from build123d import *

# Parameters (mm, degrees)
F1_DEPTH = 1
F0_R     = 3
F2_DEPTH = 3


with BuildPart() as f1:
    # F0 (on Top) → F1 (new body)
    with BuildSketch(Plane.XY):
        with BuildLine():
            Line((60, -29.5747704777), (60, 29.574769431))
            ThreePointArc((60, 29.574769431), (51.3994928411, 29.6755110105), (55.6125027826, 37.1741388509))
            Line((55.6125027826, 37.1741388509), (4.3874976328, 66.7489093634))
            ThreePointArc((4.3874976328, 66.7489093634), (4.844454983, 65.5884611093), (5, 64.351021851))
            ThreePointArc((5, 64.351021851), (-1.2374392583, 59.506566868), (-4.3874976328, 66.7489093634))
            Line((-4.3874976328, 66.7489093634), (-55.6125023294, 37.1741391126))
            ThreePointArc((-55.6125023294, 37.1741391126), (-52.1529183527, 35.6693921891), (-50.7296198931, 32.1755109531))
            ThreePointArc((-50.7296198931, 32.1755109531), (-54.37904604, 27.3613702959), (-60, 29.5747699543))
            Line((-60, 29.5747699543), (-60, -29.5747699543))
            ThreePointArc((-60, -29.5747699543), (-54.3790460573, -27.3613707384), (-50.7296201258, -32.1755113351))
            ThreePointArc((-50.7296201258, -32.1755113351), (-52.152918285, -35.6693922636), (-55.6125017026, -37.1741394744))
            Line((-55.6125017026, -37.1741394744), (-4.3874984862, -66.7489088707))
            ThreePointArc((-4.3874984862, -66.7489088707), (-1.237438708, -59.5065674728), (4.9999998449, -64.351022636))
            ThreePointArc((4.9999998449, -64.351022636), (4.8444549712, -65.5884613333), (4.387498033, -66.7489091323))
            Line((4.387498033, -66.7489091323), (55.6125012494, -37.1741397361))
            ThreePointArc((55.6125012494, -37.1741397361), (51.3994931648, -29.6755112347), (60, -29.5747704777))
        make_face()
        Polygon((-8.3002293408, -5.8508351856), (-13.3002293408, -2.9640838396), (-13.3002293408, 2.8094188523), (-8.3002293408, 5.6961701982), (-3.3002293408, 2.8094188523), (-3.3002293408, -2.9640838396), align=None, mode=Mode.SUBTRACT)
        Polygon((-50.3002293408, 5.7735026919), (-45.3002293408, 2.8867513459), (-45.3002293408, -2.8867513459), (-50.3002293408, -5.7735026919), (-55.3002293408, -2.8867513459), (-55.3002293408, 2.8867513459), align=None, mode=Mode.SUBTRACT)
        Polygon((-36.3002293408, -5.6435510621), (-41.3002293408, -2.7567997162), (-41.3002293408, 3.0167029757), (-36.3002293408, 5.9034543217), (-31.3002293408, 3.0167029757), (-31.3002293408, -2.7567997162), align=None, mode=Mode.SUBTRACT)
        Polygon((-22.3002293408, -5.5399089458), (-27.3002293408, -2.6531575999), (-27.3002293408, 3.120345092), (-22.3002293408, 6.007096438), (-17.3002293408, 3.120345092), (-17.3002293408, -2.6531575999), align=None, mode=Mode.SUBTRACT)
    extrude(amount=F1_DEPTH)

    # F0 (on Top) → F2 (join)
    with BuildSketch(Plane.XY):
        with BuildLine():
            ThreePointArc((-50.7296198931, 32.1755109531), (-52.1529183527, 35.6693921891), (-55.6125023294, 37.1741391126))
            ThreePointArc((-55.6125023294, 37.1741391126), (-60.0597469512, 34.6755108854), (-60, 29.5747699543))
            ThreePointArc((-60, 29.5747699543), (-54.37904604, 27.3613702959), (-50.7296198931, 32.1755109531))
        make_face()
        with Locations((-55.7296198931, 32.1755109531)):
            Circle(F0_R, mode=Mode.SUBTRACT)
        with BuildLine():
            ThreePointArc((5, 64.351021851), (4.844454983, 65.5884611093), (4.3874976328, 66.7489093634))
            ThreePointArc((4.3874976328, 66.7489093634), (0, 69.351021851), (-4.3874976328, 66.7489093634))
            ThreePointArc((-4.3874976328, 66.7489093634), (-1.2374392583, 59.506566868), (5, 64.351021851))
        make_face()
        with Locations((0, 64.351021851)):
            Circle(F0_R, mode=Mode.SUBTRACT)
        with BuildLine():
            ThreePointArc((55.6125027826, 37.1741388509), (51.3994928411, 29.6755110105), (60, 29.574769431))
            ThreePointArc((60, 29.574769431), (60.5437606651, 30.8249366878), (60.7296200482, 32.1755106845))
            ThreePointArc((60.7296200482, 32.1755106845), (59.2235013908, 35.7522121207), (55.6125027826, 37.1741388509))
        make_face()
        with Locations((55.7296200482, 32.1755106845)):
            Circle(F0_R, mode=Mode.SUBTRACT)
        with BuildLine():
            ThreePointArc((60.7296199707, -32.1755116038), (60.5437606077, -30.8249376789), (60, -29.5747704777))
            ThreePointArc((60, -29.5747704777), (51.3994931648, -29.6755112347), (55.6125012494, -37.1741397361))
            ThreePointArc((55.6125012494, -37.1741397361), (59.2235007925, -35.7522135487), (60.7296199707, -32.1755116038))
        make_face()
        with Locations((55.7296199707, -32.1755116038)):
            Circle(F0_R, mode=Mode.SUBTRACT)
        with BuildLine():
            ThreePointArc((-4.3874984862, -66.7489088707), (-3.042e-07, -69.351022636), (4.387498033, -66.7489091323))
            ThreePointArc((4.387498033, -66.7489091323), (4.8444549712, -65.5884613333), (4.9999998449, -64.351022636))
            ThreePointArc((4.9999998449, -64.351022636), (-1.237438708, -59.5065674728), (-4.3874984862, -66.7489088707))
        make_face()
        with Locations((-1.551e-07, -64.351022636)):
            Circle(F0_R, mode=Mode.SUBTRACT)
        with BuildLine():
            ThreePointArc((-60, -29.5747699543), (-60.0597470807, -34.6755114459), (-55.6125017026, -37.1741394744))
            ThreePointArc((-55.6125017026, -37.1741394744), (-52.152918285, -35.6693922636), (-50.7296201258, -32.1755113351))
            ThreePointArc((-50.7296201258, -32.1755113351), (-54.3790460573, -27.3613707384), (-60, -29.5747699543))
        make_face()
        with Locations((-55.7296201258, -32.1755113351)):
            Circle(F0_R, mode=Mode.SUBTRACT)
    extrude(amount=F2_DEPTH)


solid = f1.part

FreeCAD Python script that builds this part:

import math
import FreeCAD as App
import Part
import Sketcher
Q = App.Units.Quantity


def add_polygon(sketch, points):
    """Adds a closed chain of lines whose ends are joined by coincident constraints."""
    first, n = sketch.GeometryCount, len(points)
    for a, b in zip(points, points[1:] + points[:1]):
        sketch.addGeometry(Part.LineSegment(App.Vector(*a, 0), App.Vector(*b, 0)), False)
    for i in range(n):
        sketch.addConstraint(Sketcher.Constraint("Coincident", first + i, 2, first + (i + 1) % n, 1))

doc = App.newDocument("Part")
body = doc.addObject("PartDesign::Body", "Body")

# Sketch on XY plane
sketch1 = body.newObject("Sketcher::SketchObject", "Sketch")
sketch1.AttachmentSupport = (doc.getObject("XY_Plane"), [""])
sketch1.MapMode = "FlatFace"
sketch1.addGeometry(Part.LineSegment(App.Vector(60, -29.57477, 0), App.Vector(60, 29.574769, 0)), False)  # 0
sketch1.addGeometry(Part.ArcOfCircle(Part.Circle(App.Vector(55.72962, 32.175511, 0), App.Vector(0, 0, 1), 5), math.radians(91.342188), math.radians(328.657804)), False)  # 1
sketch1.addGeometry(Part.LineSegment(App.Vector(55.612503, 37.174139, 0), App.Vector(4.387498, 66.748909, 0)), False)  # 2
sketch1.addGeometry(Part.ArcOfCircle(Part.Circle(App.Vector(0, 64.351022, 0), App.Vector(0, 0, 1), 5), math.radians(0), math.radians(28.657812)), False)  # 3
sketch1.addGeometry(Part.ArcOfCircle(Part.Circle(App.Vector(0, 64.351022, 0), App.Vector(0, 0, 1), 5), math.radians(151.342188), math.radians(360)), False)  # 4
sketch1.addGeometry(Part.LineSegment(App.Vector(-4.387498, 66.748909, 0), App.Vector(-55.612502, 37.174139, 0)), False)  # 5
sketch1.addGeometry(Part.ArcOfCircle(Part.Circle(App.Vector(-55.72962, 32.175511, 0), App.Vector(0, 0, 1), 5), math.radians(0), math.radians(88.657809)), False)  # 6
sketch1.addGeometry(Part.ArcOfCircle(Part.Circle(App.Vector(-55.72962, 32.175511, 0), App.Vector(0, 0, 1), 5), math.radians(-148.657807), math.radians(0)), False)  # 7
sketch1.addGeometry(Part.LineSegment(App.Vector(-60, 29.57477, 0), App.Vector(-60, -29.57477, 0)), False)  # 8
sketch1.addGeometry(Part.ArcOfCircle(Part.Circle(App.Vector(-55.72962, -32.175511, 0), App.Vector(0, 0, 1), 5), math.radians(0), math.radians(148.657802)), False)  # 9
sketch1.addGeometry(Part.ArcOfCircle(Part.Circle(App.Vector(-55.72962, -32.175511, 0), App.Vector(0, 0, 1), 5), math.radians(-88.657799), math.radians(0)), False)  # 10
sketch1.addGeometry(Part.LineSegment(App.Vector(-55.612502, -37.174139, 0), App.Vector(-4.387498, -66.748909, 0)), False)  # 11
sketch1.addGeometry(Part.ArcOfCircle(Part.Circle(App.Vector(0, -64.351023, 0), App.Vector(0, 0, 1), 5), math.radians(0), math.radians(208.657795)), False)  # 12
sketch1.addGeometry(Part.ArcOfCircle(Part.Circle(App.Vector(0, -64.351023, 0), App.Vector(0, 0, 1), 5), math.radians(-28.657798), math.radians(0)), False)  # 13
sketch1.addGeometry(Part.LineSegment(App.Vector(4.387498, -66.748909, 0), App.Vector(55.612501, -37.17414, 0)), False)  # 14
sketch1.addGeometry(Part.ArcOfCircle(Part.Circle(App.Vector(55.72962, -32.175512, 0), App.Vector(0, 0, 1), 5), math.radians(31.342195), math.radians(268.657796)), False)  # 15
add_polygon(sketch1, [(-55.300229, 2.886751), (-50.300229, 5.773503), (-45.300229, 2.886751), (-45.300229, -2.886751), (-50.300229, -5.773503), (-55.300229, -2.886751)])  # lines 16-21
add_polygon(sketch1, [(-3.300229, -2.964084), (-8.300229, -5.850835), (-13.300229, -2.964084), (-13.300229, 2.809419), (-8.300229, 5.69617), (-3.300229, 2.809419)])  # lines 22-27
add_polygon(sketch1, [(-31.300229, -2.7568), (-36.300229, -5.643551), (-41.300229, -2.7568), (-41.300229, 3.016703), (-36.300229, 5.903454), (-31.300229, 3.016703)])  # lines 28-33
add_polygon(sketch1, [(-17.300229, -2.653158), (-22.300229, -5.539909), (-27.300229, -2.653158), (-27.300229, 3.120345), (-22.300229, 6.007096), (-17.300229, 3.120345)])  # lines 34-39
sketch1.addConstraint([
    Sketcher.Constraint("Coincident", 0, 2, 1, 2),
    Sketcher.Constraint("Coincident", 1, 1, 2, 1),
    Sketcher.Constraint("Coincident", 2, 2, 3, 2),
    Sketcher.Constraint("Coincident", 3, 1, 4, 2),
    Sketcher.Constraint("Coincident", 4, 1, 5, 1),
    Sketcher.Constraint("Coincident", 5, 2, 6, 2),
    Sketcher.Constraint("Coincident", 6, 1, 7, 2),
    Sketcher.Constraint("Coincident", 7, 1, 8, 1),
    Sketcher.Constraint("Coincident", 8, 2, 9, 2),
    Sketcher.Constraint("Coincident", 9, 1, 10, 2),
    Sketcher.Constraint("Coincident", 10, 1, 11, 1),
    Sketcher.Constraint("Coincident", 11, 2, 12, 2),
    Sketcher.Constraint("Coincident", 12, 1, 13, 2),
    Sketcher.Constraint("Coincident", 13, 1, 14, 1),
    Sketcher.Constraint("Coincident", 14, 2, 15, 2),
    Sketcher.Constraint("Coincident", 15, 1, 0, 1),
    Sketcher.Constraint("Vertical", 0),
    Sketcher.Constraint("Vertical", 8),
    Sketcher.Constraint("Vertical", 18),
    Sketcher.Constraint("Vertical", 21),
    Sketcher.Constraint("Vertical", 24),
    Sketcher.Constraint("Vertical", 27),
    Sketcher.Constraint("Vertical", 30),
    Sketcher.Constraint("Vertical", 33),
    Sketcher.Constraint("Vertical", 36),
    Sketcher.Constraint("Vertical", 39),
    Sketcher.Constraint("Coincident", 4, 3, 3, 3),
    Sketcher.Constraint("Coincident", 7, 3, 6, 3),
    Sketcher.Constraint("Coincident", 10, 3, 9, 3),
    Sketcher.Constraint("Coincident", 13, 3, 12, 3),
    Sketcher.Constraint("PointOnObject", 3, 3, -2),
    Sketcher.Constraint("PointOnObject", 12, 3, -2),
    Sketcher.Constraint("Radius", 1, Q("5 mm")),
    Sketcher.Constraint("Radius", 3, Q("5 mm")),
    Sketcher.Constraint("Radius", 6, Q("5 mm")),
    Sketcher.Constraint("Radius", 9, Q("5 mm")),
    Sketcher.Constraint("Radius", 12, Q("5 mm")),
    Sketcher.Constraint("Radius", 15, Q("5 mm")),
    Sketcher.Constraint("DistanceX", -1, 1, 0, 2, Q("60 mm")),
    Sketcher.Constraint("DistanceX", 7, 1, -1, 1, Q("60 mm")),
    Sketcher.Constraint("DistanceX", 16, 2, 17, 2, Q("5 mm")),
    Sketcher.Constraint("DistanceX", 19, 2, 18, 2, Q("5 mm")),
    Sketcher.Constraint("DistanceX", 20, 2, 19, 2, Q("5 mm")),
    Sketcher.Constraint("DistanceX", 18, 2, 22, 2, Q("37 mm")),
    Sketcher.Constraint("DistanceX", 23, 2, 22, 2, Q("5 mm")),
    Sketcher.Constraint("DistanceX", 24, 2, 25, 2, Q("5 mm")),
    Sketcher.Constraint("DistanceX", 25, 2, 26, 2, Q("5 mm")),
    Sketcher.Constraint("DistanceX", 18, 2, 28, 2, Q("9 mm")),
    Sketcher.Constraint("DistanceX", 18, 2, 29, 2, Q("4 mm")),
    Sketcher.Constraint("DistanceX", 30, 2, 31, 2, Q("5 mm")),
    Sketcher.Constraint("DistanceX", 31, 2, 32, 2, Q("5 mm")),
    Sketcher.Constraint("DistanceX", 34, 2, 23, 2, Q("9 mm")),
    Sketcher.Constraint("DistanceX", 33, 2, 35, 2, Q("4 mm")),
    Sketcher.Constraint("DistanceX", 36, 2, 37, 2, Q("5 mm")),
    Sketcher.Constraint("DistanceX", 38, 2, 24, 2, Q("4 mm")),
    Sketcher.Constraint("DistanceY", 0, 1, 0, 2, Q("59.14954 mm")),
    Sketcher.Constraint("DistanceY", 8, 2, 8, 1, Q("59.14954 mm")),
    Sketcher.Constraint("DistanceX", 10, 1, -1, 1, Q("55.612502 mm")),
    Sketcher.Constraint("DistanceX", 11, 2, -1, 1, Q("4.387498 mm")),
    Sketcher.Constraint("DistanceX", -1, 1, 13, 1, Q("4.387498 mm")),
    Sketcher.Constraint("DistanceX", -1, 1, 14, 2, Q("55.612501 mm")),
    Sketcher.Constraint("DistanceY", 29, 2, -1, 1, Q("2.7568 mm")),
    Sketcher.Constraint("DistanceY", 33, 2, -1, 1, Q("2.7568 mm")),
    Sketcher.Constraint("DistanceY", 1, 3, 2, 2, Q("34.573399 mm")),
    Sketcher.Constraint("DistanceY", 6, 3, 4, 1, Q("34.573398 mm")),
    Sketcher.Constraint("DistanceY", 6, 1, 4, 1, Q("34.573398 mm")),
    Sketcher.Constraint("DistanceY", 28, 2, 18, 2, Q("2.7568 mm")),
    Sketcher.Constraint("DistanceY", 28, 2, 20, 2, Q("2.7568 mm")),
    Sketcher.Constraint("DistanceY", 30, 2, 16, 2, Q("2.7568 mm")),
    Sketcher.Constraint("Distance", 2, Q("59.149541 mm")),
    Sketcher.Constraint("Distance", 5, Q("59.149541 mm")),
    Sketcher.Constraint("Distance", 11, Q("59.149539 mm")),
    Sketcher.Constraint("Distance", 14, Q("59.149539 mm")),
    Sketcher.Constraint("DistanceY", 18, 2, 18, 1, Q("5.773503 mm")),
    Sketcher.Constraint("DistanceY", 21, 1, 21, 2, Q("5.773503 mm")),
    Sketcher.Constraint("DistanceY", 24, 1, 24, 2, Q("5.773503 mm")),
    Sketcher.Constraint("DistanceY", 27, 2, 27, 1, Q("5.773503 mm")),
    Sketcher.Constraint("DistanceY", 30, 1, 30, 2, Q("5.773503 mm")),
    Sketcher.Constraint("DistanceY", 33, 2, 33, 1, Q("5.773503 mm")),
    Sketcher.Constraint("DistanceY", 36, 1, 36, 2, Q("5.773503 mm")),
    Sketcher.Constraint("DistanceY", 39, 2, 39, 1, Q("5.773503 mm")),
    Sketcher.Constraint("DistanceX", -1, 1, 1, 3, Q("55.72962 mm")),
    Sketcher.Constraint("DistanceY", -1, 1, 1, 3, Q("32.175511 mm")),
    Sketcher.Constraint("DistanceY", -1, 1, 3, 3, Q("64.351022 mm")),
    Sketcher.Constraint("DistanceX", 6, 3, -1, 1, Q("55.72962 mm")),
    Sketcher.Constraint("DistanceY", -1, 1, 6, 3, Q("32.175511 mm")),
    Sketcher.Constraint("DistanceX", 9, 3, -1, 1, Q("55.72962 mm")),
    Sketcher.Constraint("DistanceY", -1, 1, 3, 1, Q("64.351022 mm")),
    Sketcher.Constraint("DistanceY", 9, 1, -1, 1, Q("32.175511 mm")),
    Sketcher.Constraint("DistanceX", 16, 2, -1, 1, Q("50.300229 mm")),
    Sketcher.Constraint("DistanceY", -1, 1, 17, 2, Q("2.886751 mm")),
    Sketcher.Constraint("DistanceY", -1, 1, 24, 2, Q("2.809419 mm")),
    Sketcher.Constraint("DistanceY", -1, 1, 25, 2, Q("5.69617 mm")),
    Sketcher.Constraint("DistanceY", -1, 1, 26, 2, Q("2.809419 mm")),
    Sketcher.Constraint("DistanceY", 34, 2, -1, 1, Q("5.539909 mm")),
    Sketcher.Constraint("DistanceY", 12, 1, 15, 3, Q("32.175511 mm")),
    Sketcher.Constraint("DistanceY", 19, 2, 18, 2, Q("2.886751 mm")),
    Sketcher.Constraint("DistanceY", 22, 2, 23, 2, Q("2.886751 mm")),
    Sketcher.Constraint("DistanceY", 30, 2, 31, 2, Q("2.886751 mm")),
    Sketcher.Constraint("DistanceY", 34, 2, 35, 2, Q("2.886751 mm")),
    Sketcher.Constraint("DistanceY", 36, 2, 37, 2, Q("2.886751 mm")),
    Sketcher.Constraint("DistanceY", 38, 2, 37, 2, Q("2.886751 mm")),
])
pad1 = body.newObject("PartDesign::Pad", "Pad")
pad1.Profile = sketch1
pad1.Length = 1

# Sketch on XY plane
sketch2 = body.newObject("Sketcher::SketchObject", "Sketch001")
sketch2.AttachmentSupport = (doc.getObject("XY_Plane"), [""])
sketch2.MapMode = "FlatFace"
sketch2.addGeometry([
    Part.ArcOfCircle(Part.Circle(App.Vector(-55.7, 32.2, 0), App.Vector(0, 0, 1), 5), math.radians(0), math.radians(89)),  # 0
    Part.ArcOfCircle(Part.Circle(App.Vector(-55.7, 32.2, 0), App.Vector(0, 0, 1), 5), math.radians(89), math.radians(211)),  # 1
    Part.ArcOfCircle(Part.Circle(App.Vector(-55.7, 32.2, 0), App.Vector(0, 0, 1), 5), math.radians(-149), math.radians(0)),  # 2
    Part.Circle(App.Vector(-55.7, 32.2, 0), App.Vector(0, 0, 1), 3),  # 3
    Part.ArcOfCircle(Part.Circle(App.Vector(0, 64.4, 0), App.Vector(0, 0, 1), 5), math.radians(0), math.radians(29)),  # 4
    Part.ArcOfCircle(Part.Circle(App.Vector(0, 64.4, 0), App.Vector(0, 0, 1), 5), math.radians(29), math.radians(151)),  # 5
    Part.ArcOfCircle(Part.Circle(App.Vector(0, 64.4, 0), App.Vector(0, 0, 1), 5), math.radians(151), math.radians(360)),  # 6
    Part.Circle(App.Vector(0, 64.4, 0), App.Vector(0, 0, 1), 3),  # 7
    Part.ArcOfCircle(Part.Circle(App.Vector(55.7, 32.2, 0), App.Vector(0, 0, 1), 5), math.radians(91), math.radians(329)),  # 8
    Part.ArcOfCircle(Part.Circle(App.Vector(55.7, 32.2, 0), App.Vector(0, 0, 1), 5), math.radians(-31), math.radians(0)),  # 9
    Part.ArcOfCircle(Part.Circle(App.Vector(55.7, 32.2, 0), App.Vector(0, 0, 1), 5), math.radians(0), math.radians(91)),  # 10
    Part.Circle(App.Vector(55.7, 32.2, 0), App.Vector(0, 0, 1), 3),  # 11
    Part.ArcOfCircle(Part.Circle(App.Vector(55.7, -32.2, 0), App.Vector(0, 0, 1), 5), math.radians(0), math.radians(31)),  # 12
    Part.ArcOfCircle(Part.Circle(App.Vector(55.7, -32.2, 0), App.Vector(0, 0, 1), 5), math.radians(31), math.radians(269)),  # 13
    Part.ArcOfCircle(Part.Circle(App.Vector(55.7, -32.2, 0), App.Vector(0, 0, 1), 5), math.radians(-91), math.radians(0)),  # 14
    Part.Circle(App.Vector(55.7, -32.2, 0), App.Vector(0, 0, 1), 3),  # 15
    Part.ArcOfCircle(Part.Circle(App.Vector(0, -64.4, 0), App.Vector(0, 0, 1), 5), math.radians(-151), math.radians(-29)),  # 16
    Part.ArcOfCircle(Part.Circle(App.Vector(0, -64.4, 0), App.Vector(0, 0, 1), 5), math.radians(-29), math.radians(0)),  # 17
    Part.ArcOfCircle(Part.Circle(App.Vector(0, -64.4, 0), App.Vector(0, 0, 1), 5), math.radians(0), math.radians(209)),  # 18
    Part.Circle(App.Vector(0, -64.4, 0), App.Vector(0, 0, 1), 3),  # 19
    Part.ArcOfCircle(Part.Circle(App.Vector(-55.7, -32.2, 0), App.Vector(0, 0, 1), 5), math.radians(149), math.radians(271)),  # 20
    Part.ArcOfCircle(Part.Circle(App.Vector(-55.7, -32.2, 0), App.Vector(0, 0, 1), 5), math.radians(-89), math.radians(0)),  # 21
    Part.ArcOfCircle(Part.Circle(App.Vector(-55.7, -32.2, 0), App.Vector(0, 0, 1), 5), math.radians(0), math.radians(149)),  # 22
    Part.Circle(App.Vector(-55.7, -32.2, 0), App.Vector(0, 0, 1), 3),  # 23
], False)
sketch2.addConstraint([
    Sketcher.Constraint("Tangent", 0, 2, 1, 1),
    Sketcher.Constraint("Tangent", 1, 2, 2, 1),
    Sketcher.Constraint("Tangent", 2, 2, 0, 1),
    Sketcher.Constraint("Tangent", 4, 2, 5, 1),
    Sketcher.Constraint("Tangent", 5, 2, 6, 1),
    Sketcher.Constraint("Tangent", 6, 2, 4, 1),
    Sketcher.Constraint("Tangent", 8, 2, 9, 1),
    Sketcher.Constraint("Tangent", 9, 2, 10, 1),
    Sketcher.Constraint("Tangent", 10, 2, 8, 1),
    Sketcher.Constraint("Tangent", 12, 2, 13, 1),
    Sketcher.Constraint("Tangent", 13, 2, 14, 1),
    Sketcher.Constraint("Tangent", 14, 2, 12, 1),
    Sketcher.Constraint("Tangent", 16, 2, 17, 1),
    Sketcher.Constraint("Tangent", 17, 2, 18, 1),
    Sketcher.Constraint("Tangent", 18, 2, 16, 1),
    Sketcher.Constraint("Tangent", 20, 2, 21, 1),
    Sketcher.Constraint("Tangent", 21, 2, 22, 1),
    Sketcher.Constraint("Tangent", 22, 2, 20, 1),
    Sketcher.Constraint("Coincident", 3, 3, 0, 3),
    Sketcher.Constraint("Coincident", 7, 3, 4, 3),
    Sketcher.Constraint("Coincident", 11, 3, 8, 3),
    Sketcher.Constraint("Coincident", 15, 3, 12, 3),
    Sketcher.Constraint("Coincident", 19, 3, 16, 3),
    Sketcher.Constraint("Coincident", 23, 3, 20, 3),
    Sketcher.Constraint("Equal", 2, 4),
    Sketcher.Constraint("Equal", 3, 7),
    Sketcher.Constraint("Equal", 6, 8),
    Sketcher.Constraint("Equal", 7, 11),
    Sketcher.Constraint("Equal", 10, 12),
    Sketcher.Constraint("Equal", 11, 15),
    Sketcher.Constraint("Equal", 14, 16),
    Sketcher.Constraint("Equal", 15, 19),
    Sketcher.Constraint("Equal", 18, 20),
    Sketcher.Constraint("Equal", 19, 23),
    Sketcher.Constraint("Symmetric", 0, 3, 12, 3, -1, 1),
    Sketcher.Constraint("Symmetric", 4, 3, 16, 3, -1, 1),
    Sketcher.Constraint("Symmetric", 8, 3, 20, 3, -1, 1),
    Sketcher.Constraint("Symmetric", 0, 3, 8, 3, -2),
    Sketcher.Constraint("Symmetric", 4, 2, 5, 2, -2),
    Sketcher.Constraint("Horizontal", 11, 3, 2, 2),
    Sketcher.Constraint("Horizontal", 7, 3, 6, 2),
    Sketcher.Constraint("Horizontal", 1, 2, 8, 2),
    Sketcher.Constraint("Horizontal", 2, 2, 9, 2),
    Sketcher.Constraint("Horizontal", 0, 2, 10, 2),
    Sketcher.Constraint("Horizontal", 23, 3, 14, 2),
    Sketcher.Constraint("Horizontal", 19, 3, 17, 2),
    Sketcher.Constraint("Horizontal", 16, 2, 18, 2),
    Sketcher.Constraint("Horizontal", 13, 2, 20, 2),
    Sketcher.Constraint("Horizontal", 14, 2, 21, 2),
    Sketcher.Constraint("Horizontal", 12, 2, 22, 2),
    Sketcher.Constraint("Vertical", 8, 2, 12, 2),
    Sketcher.Constraint("Vertical", 10, 2, 13, 2),
    Sketcher.Constraint("Vertical", 4, 2, 16, 2),
    Sketcher.Constraint("Diameter", 3, Q("6 mm")),
    Sketcher.Constraint("Radius", 0, Q("5 mm")),
    Sketcher.Constraint("DistanceX", 1, 2, -1, 1, Q("60 mm")),
    Sketcher.Constraint("DistanceX", -1, 1, 13, 2, Q("55.612501 mm")),
    Sketcher.Constraint("DistanceX", -1, 1, 16, 2, Q("4.387498 mm")),
    Sketcher.Constraint("DistanceY", 9, 3, 4, 2, Q("34.573399 mm")),
    Sketcher.Constraint("DistanceX", 0, 3, -1, 1, Q("55.72962 mm")),
    Sketcher.Constraint("DistanceY", -1, 1, 0, 3, Q("32.175511 mm")),
])
pad2 = body.newObject("PartDesign::Pad", "Pad001")
pad2.Profile = sketch2
pad2.Length = 3

doc.recompute()
